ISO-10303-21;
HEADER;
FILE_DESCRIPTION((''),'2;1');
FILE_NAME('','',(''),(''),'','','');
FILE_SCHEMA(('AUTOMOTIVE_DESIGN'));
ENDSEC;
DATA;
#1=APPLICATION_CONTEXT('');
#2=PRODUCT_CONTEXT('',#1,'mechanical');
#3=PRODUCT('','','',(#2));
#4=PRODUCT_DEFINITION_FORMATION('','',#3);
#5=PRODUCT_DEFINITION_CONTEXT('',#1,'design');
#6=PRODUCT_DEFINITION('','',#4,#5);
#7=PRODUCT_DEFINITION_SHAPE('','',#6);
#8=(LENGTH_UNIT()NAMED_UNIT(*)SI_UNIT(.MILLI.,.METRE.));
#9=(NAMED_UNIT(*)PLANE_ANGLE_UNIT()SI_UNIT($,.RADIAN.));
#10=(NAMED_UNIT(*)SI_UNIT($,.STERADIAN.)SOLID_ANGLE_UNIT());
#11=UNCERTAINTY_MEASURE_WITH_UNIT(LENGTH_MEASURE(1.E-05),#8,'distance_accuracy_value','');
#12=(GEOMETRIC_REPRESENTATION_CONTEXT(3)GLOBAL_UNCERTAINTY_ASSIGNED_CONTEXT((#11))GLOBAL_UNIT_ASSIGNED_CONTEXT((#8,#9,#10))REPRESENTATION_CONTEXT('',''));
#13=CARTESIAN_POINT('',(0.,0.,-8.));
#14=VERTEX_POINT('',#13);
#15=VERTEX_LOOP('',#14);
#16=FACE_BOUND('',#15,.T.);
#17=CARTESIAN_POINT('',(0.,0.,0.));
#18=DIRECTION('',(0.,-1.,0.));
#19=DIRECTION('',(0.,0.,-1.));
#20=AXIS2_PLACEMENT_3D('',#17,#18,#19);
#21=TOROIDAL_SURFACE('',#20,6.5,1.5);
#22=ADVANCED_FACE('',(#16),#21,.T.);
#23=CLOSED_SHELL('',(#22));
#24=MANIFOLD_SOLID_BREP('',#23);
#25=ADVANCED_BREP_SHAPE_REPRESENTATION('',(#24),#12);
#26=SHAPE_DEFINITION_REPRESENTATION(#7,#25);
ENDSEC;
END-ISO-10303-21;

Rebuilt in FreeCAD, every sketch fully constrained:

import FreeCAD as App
import Part
import Sketcher
from FreeCAD import Vector
Q = App.Units.Quantity

doc = App.newDocument("Part")
body = doc.addObject("PartDesign::Body", "Body")

# Sketch on XY plane
sketch1 = body.newObject("Sketcher::SketchObject", "Sketch")
sketch1.AttachmentSupport = (doc.getObject("XY_Plane"), [""])
sketch1.MapMode = "FlatFace"
sketch1.addGeometry(Part.Circle(Vector(6.5, 0, 0), Vector(0, 0, 1), 1.5), False)
sketch1.addConstraint([
    Sketcher.Constraint("PointOnObject", 0, 3, -1),
    Sketcher.Constraint("Diameter", 0, Q("3 mm")),
    Sketcher.Constraint("DistanceX", -1, 1, 0, 3, Q("6.5 mm")),
])
revolution = body.newObject("PartDesign::Revolution", "Revolution")
revolution.Profile = sketch1
revolution.ReferenceAxis = (sketch1, ["V_Axis"])
revolution.Angle = 360

doc.recompute()
